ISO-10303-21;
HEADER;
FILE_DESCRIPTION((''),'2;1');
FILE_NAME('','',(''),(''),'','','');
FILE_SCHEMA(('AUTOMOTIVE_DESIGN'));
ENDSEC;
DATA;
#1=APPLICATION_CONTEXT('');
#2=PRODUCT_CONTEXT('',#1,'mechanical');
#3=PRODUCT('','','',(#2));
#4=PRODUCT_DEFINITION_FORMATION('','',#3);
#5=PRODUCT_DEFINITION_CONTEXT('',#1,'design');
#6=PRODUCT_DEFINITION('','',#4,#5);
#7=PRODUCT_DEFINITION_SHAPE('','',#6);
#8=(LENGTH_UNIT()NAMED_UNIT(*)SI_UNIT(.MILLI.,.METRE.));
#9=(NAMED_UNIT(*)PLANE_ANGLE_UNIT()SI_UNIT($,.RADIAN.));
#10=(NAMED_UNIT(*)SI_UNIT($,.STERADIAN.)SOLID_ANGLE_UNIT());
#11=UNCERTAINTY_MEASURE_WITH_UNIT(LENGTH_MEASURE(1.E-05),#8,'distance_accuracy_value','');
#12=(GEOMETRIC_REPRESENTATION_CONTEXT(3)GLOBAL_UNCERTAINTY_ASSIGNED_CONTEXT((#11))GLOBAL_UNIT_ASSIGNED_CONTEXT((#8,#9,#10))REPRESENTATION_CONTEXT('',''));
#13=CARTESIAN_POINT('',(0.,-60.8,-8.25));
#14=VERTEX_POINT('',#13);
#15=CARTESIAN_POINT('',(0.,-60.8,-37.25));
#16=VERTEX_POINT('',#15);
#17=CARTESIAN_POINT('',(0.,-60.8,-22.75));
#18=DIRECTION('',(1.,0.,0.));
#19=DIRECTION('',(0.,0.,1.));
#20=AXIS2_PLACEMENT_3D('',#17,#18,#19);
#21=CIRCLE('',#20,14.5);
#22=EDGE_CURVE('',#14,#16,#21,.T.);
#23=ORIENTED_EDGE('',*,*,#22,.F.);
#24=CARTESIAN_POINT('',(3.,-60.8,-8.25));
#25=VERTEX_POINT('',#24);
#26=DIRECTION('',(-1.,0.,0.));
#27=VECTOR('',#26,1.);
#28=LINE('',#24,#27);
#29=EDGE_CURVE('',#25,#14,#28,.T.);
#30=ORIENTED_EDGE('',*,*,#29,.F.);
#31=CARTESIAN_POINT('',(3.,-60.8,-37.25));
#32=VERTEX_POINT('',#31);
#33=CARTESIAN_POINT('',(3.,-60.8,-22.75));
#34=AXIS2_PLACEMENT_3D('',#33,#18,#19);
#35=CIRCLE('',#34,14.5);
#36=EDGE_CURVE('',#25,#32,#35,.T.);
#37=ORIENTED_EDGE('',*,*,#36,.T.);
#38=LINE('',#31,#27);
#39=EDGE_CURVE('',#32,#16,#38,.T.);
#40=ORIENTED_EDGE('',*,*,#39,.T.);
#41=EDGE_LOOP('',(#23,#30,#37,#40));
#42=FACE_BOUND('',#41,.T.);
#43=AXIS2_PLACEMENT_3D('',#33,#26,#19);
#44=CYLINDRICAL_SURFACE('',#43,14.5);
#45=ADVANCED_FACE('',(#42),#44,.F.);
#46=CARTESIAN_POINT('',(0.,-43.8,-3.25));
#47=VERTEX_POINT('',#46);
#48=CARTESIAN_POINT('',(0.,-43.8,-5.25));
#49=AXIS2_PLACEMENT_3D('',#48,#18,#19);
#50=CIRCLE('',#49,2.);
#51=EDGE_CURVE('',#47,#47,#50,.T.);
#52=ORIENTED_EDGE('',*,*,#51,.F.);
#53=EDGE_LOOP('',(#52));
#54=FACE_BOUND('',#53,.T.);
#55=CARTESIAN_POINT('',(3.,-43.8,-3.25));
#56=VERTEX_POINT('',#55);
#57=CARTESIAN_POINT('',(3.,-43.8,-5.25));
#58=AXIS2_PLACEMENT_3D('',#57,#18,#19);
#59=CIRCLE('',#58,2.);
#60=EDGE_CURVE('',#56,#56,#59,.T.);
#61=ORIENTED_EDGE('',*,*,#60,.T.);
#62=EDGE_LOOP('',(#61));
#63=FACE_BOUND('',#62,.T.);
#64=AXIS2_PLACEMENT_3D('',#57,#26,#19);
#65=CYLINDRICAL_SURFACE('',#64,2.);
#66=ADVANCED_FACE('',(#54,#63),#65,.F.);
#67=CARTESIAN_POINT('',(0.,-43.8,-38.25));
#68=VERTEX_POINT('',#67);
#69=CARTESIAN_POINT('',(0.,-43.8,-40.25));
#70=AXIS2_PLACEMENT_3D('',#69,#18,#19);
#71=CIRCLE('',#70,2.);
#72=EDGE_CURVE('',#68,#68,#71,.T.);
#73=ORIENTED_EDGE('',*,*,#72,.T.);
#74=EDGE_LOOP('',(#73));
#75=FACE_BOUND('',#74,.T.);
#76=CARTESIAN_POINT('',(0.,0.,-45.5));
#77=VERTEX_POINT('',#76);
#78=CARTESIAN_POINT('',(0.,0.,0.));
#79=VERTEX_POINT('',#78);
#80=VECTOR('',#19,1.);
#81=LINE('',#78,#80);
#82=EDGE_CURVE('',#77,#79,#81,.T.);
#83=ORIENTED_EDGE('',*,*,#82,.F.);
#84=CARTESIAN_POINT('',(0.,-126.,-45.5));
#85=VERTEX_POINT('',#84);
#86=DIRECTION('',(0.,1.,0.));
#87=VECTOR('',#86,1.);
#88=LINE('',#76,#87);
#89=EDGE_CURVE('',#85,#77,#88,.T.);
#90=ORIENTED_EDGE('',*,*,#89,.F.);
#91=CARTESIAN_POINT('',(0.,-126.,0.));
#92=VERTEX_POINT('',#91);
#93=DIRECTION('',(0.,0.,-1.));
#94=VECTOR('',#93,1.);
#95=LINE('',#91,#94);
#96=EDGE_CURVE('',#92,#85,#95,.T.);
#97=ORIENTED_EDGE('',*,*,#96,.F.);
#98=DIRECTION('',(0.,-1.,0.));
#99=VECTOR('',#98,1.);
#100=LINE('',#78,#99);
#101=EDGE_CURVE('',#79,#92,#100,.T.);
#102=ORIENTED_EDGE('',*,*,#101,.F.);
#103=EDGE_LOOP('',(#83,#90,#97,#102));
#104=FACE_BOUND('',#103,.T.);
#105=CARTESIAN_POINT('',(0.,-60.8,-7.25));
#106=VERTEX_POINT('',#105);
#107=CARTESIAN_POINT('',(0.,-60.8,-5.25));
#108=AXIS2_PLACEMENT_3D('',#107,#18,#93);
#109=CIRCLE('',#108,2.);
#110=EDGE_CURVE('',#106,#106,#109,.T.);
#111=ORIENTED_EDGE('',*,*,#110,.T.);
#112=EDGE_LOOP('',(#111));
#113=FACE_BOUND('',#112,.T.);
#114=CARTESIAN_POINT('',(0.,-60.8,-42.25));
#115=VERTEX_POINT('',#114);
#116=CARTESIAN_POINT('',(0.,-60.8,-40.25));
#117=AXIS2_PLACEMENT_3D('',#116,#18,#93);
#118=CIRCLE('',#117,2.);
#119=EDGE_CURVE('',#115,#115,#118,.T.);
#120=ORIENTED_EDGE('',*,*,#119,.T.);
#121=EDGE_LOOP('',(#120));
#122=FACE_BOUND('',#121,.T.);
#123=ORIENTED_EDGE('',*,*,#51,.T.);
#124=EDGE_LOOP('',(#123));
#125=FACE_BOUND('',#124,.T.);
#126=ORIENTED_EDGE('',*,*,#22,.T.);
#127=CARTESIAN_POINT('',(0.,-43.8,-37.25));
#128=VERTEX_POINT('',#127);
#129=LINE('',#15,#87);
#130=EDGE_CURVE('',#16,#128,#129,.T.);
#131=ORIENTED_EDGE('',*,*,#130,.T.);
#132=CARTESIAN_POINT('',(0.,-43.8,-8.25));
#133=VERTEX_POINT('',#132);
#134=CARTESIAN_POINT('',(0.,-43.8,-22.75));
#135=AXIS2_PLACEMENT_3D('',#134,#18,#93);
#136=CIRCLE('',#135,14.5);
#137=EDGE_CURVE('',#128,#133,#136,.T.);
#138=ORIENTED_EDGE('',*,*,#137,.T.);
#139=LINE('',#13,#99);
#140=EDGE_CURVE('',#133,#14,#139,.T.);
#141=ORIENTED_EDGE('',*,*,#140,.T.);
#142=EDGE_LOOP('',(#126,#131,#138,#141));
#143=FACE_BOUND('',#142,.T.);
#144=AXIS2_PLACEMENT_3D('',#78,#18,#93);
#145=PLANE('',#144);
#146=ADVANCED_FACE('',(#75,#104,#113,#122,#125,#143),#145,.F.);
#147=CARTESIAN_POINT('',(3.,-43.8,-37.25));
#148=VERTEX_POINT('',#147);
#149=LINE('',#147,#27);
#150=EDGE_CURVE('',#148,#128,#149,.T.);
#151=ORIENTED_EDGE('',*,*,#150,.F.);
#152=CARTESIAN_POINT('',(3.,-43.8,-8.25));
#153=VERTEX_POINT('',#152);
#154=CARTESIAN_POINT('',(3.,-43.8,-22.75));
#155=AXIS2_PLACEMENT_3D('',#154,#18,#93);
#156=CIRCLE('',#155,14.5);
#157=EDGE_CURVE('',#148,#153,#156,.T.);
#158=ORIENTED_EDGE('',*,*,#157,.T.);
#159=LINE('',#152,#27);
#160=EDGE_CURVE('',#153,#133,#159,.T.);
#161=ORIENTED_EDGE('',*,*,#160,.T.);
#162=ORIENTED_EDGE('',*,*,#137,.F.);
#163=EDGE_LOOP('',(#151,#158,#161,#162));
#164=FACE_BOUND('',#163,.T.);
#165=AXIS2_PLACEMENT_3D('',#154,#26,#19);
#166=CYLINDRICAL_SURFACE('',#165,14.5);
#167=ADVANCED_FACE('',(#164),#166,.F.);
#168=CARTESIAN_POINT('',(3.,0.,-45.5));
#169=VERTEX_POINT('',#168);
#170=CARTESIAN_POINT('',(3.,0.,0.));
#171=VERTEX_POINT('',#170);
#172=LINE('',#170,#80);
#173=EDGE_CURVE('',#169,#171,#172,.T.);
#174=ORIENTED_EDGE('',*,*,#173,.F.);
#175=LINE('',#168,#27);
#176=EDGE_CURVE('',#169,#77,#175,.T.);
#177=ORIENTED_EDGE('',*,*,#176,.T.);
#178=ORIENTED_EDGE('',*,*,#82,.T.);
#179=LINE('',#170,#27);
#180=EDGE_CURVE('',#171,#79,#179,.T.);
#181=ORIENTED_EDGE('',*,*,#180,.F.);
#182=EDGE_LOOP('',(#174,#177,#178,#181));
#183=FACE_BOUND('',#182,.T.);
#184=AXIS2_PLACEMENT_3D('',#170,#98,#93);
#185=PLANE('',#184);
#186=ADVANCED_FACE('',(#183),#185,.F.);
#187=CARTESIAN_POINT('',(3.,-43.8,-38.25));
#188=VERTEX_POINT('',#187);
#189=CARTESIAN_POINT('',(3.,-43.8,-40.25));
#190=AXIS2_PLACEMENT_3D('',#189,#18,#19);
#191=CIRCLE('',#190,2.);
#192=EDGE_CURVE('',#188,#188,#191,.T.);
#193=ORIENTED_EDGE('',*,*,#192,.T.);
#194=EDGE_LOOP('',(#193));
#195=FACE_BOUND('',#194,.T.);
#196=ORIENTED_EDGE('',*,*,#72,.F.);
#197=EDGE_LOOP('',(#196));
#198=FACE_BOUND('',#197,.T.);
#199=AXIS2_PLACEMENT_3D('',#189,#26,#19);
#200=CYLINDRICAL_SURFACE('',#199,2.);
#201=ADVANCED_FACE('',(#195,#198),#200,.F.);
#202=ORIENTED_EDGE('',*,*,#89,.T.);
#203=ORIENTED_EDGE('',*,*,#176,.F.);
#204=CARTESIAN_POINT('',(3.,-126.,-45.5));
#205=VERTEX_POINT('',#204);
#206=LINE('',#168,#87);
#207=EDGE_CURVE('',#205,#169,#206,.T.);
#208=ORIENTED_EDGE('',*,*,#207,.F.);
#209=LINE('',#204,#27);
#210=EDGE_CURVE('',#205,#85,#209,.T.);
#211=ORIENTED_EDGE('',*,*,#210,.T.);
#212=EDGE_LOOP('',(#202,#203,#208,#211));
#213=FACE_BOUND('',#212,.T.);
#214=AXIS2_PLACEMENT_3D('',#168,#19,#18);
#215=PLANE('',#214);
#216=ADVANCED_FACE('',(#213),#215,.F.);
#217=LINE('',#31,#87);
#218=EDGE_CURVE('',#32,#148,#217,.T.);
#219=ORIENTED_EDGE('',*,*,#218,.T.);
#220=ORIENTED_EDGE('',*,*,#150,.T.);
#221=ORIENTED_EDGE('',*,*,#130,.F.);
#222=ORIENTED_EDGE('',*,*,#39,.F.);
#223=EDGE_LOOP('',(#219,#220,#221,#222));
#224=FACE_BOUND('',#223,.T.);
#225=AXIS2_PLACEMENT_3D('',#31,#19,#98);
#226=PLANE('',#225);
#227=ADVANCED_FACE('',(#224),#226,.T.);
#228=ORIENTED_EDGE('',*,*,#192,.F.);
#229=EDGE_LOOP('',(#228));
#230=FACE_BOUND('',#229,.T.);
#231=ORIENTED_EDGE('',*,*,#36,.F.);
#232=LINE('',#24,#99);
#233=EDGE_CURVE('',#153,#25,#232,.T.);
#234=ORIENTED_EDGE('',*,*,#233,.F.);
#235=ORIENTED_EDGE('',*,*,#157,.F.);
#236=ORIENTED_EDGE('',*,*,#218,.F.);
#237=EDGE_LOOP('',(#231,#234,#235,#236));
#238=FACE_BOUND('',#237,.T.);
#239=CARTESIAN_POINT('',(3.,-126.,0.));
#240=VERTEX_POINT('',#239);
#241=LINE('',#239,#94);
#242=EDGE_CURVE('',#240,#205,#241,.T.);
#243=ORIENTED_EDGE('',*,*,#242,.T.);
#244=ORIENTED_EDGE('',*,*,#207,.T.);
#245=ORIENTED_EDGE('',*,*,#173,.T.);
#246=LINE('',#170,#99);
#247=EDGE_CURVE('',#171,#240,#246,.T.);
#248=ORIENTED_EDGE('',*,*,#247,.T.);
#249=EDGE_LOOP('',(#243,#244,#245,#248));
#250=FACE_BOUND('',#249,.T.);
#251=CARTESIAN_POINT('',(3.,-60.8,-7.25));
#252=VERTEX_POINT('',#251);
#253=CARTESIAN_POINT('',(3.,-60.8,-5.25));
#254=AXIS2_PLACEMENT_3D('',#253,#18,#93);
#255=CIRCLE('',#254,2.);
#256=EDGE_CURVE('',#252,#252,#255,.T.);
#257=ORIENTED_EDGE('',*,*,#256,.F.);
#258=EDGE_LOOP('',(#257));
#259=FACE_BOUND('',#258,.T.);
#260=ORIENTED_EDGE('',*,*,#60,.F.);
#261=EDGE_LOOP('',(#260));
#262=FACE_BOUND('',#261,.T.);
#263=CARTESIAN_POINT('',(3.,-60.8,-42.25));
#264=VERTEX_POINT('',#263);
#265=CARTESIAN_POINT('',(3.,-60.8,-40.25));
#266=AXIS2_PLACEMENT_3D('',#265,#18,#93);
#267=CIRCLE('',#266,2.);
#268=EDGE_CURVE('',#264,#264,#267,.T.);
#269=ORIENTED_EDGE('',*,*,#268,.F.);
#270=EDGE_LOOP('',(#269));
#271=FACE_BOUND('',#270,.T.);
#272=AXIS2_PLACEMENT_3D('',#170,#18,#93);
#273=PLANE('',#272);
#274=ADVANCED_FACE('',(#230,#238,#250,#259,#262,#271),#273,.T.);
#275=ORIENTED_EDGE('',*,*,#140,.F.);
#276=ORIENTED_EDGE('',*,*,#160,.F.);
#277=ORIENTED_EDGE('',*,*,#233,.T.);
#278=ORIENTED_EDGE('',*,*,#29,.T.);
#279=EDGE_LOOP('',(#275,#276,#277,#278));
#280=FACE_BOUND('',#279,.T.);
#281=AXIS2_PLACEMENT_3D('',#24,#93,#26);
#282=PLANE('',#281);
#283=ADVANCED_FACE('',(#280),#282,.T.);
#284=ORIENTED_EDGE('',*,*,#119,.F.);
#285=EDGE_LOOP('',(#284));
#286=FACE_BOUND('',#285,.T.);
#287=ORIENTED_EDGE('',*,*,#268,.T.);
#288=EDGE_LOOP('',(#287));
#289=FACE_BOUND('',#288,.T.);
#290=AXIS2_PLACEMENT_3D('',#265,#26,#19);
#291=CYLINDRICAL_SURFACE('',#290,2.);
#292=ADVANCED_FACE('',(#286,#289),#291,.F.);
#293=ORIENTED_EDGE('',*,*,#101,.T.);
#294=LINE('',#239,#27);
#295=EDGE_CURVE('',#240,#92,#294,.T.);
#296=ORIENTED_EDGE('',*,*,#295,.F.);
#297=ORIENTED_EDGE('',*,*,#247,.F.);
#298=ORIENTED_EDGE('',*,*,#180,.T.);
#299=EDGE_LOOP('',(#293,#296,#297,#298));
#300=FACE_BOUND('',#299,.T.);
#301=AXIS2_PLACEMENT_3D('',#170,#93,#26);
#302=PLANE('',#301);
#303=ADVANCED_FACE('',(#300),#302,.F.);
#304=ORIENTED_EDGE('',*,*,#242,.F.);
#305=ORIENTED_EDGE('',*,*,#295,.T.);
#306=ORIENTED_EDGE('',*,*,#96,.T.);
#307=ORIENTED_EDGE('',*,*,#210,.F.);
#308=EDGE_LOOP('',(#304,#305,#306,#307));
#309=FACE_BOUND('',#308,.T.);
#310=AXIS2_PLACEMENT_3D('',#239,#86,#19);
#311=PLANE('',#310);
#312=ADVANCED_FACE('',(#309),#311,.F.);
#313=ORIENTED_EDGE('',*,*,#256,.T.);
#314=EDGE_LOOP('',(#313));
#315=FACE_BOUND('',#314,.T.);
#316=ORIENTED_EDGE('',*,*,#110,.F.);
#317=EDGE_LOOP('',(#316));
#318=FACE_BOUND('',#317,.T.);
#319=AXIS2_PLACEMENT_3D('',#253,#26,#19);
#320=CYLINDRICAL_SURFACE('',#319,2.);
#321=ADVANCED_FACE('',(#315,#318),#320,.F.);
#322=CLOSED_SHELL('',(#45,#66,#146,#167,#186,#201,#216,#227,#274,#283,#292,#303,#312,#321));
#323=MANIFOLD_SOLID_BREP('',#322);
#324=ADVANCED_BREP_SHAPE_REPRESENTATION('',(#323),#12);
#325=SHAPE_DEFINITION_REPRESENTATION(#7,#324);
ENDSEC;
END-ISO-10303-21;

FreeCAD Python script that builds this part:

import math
import FreeCAD as App
import Part
import Sketcher

V = App.Vector
Q = App.Units.Quantity


def add_polygon(sketch, points):
    """Adds a closed chain of lines whose ends are joined by coincident constraints."""
    first, n = sketch.GeometryCount, len(points)
    for a, b in zip(points, points[1:] + points[:1]):
        sketch.addGeometry(Part.LineSegment(App.Vector(*a, 0), App.Vector(*b, 0)), False)
    for i in range(n):
        sketch.addConstraint(Sketcher.Constraint("Coincident", first + i, 2, first + (i + 1) % n, 1))

doc = App.newDocument("Part")
body = doc.addObject("PartDesign::Body", "Body")

sketch1 = body.newObject("Sketcher::SketchObject", "Sketch")
sketch1.AttachmentSupport = (doc.getObject("YZ_Plane"), [""])
sketch1.MapMode = "FlatFace"
add_polygon(sketch1, [(0, 0), (-126, 0), (-126, -45.5), (0, -45.5)])
sketch1.addGeometry(Part.Circle(V(-60.8, -5.2, 0), V(0, 0, 1), 2), False)
sketch1.addGeometry(Part.Circle(V(-60.8, -40.2, 0), V(0, 0, 1), 2), False)
sketch1.addGeometry(Part.Circle(V(-43.8, -5.2, 0), V(0, 0, 1), 2), False)
sketch1.addGeometry(Part.ArcOfCircle(Part.Circle(V(-60.8, -22.8, 0), V(0, 0, 1), 14.5), math.radians(90), math.radians(270)), False)
sketch1.addGeometry(Part.LineSegment(V(-60.8, -8.2, 0), V(-43.8, -8.2, 0)), False)
sketch1.addGeometry(Part.ArcOfCircle(Part.Circle(V(-43.8, -22.8, 0), V(0, 0, 1), 14.5), math.radians(-90), math.radians(90)), False)
sketch1.addGeometry(Part.LineSegment(V(-43.8, -37.2, 0), V(-60.8, -37.2, 0)), False)
sketch1.addGeometry(Part.Circle(V(-43.8, -40.2, 0), V(0, 0, 1), 2), False)
sketch1.addConstraint([
    Sketcher.Constraint("Tangent", 7, 1, 8, 1),
    Sketcher.Constraint("Tangent", 8, 2, 9, 2),
    Sketcher.Constraint("Tangent", 9, 1, 10, 1),
    Sketcher.Constraint("Tangent", 10, 2, 7, 2),
    Sketcher.Constraint("Horizontal", 0),
    Sketcher.Constraint("Vertical", 1),
    Sketcher.Constraint("Horizontal", 2),
    Sketcher.Constraint("Vertical", 3),
    Sketcher.Constraint("Horizontal", 8),
    Sketcher.Constraint("Horizontal", 10),
    Sketcher.Constraint("Coincident", 3, 2, -1, 1),
    Sketcher.Constraint("Equal", 4, 5),
    Sketcher.Constraint("Equal", 5, 6),
    Sketcher.Constraint("Equal", 6, 11),
    Sketcher.Constraint("Horizontal", 4, 3, 6, 3),
    Sketcher.Constraint("Horizontal", 5, 3, 11, 3),
    Sketcher.Constraint("Vertical", 4, 3, 5, 3),
    Sketcher.Constraint("Vertical", 5, 3, 7, 3),
    Sketcher.Constraint("Vertical", 6, 3, 9, 3),
    Sketcher.Constraint("Vertical", 9, 3, 11, 3),
    Sketcher.Constraint("Diameter", 4, Q("4 mm")),
    Sketcher.Constraint("Radius", 7, Q("14.5 mm")),
    Sketcher.Constraint("DistanceX", 0, 2, 0, 1, Q("126 mm")),
    Sketcher.Constraint("DistanceX", 8, 1, 8, 2, Q("17 mm")),
    Sketcher.Constraint("DistanceY", 1, 2, 1, 1, Q("45.5 mm")),
    Sketcher.Constraint("DistanceY", 5, 3, 4, 3, Q("35 mm")),
    Sketcher.Constraint("DistanceY", 7, 1, 4, 3, Q("3 mm")),
    Sketcher.Constraint("DistanceX", 4, 3, -1, 1, Q("60.8 mm")),
    Sketcher.Constraint("DistanceY", 4, 3, -1, 1, Q("5.25 mm")),
])
pad1 = body.newObject("PartDesign::Pad", "Pad")
pad1.Profile = sketch1
pad1.Length = 3

doc.recompute()
